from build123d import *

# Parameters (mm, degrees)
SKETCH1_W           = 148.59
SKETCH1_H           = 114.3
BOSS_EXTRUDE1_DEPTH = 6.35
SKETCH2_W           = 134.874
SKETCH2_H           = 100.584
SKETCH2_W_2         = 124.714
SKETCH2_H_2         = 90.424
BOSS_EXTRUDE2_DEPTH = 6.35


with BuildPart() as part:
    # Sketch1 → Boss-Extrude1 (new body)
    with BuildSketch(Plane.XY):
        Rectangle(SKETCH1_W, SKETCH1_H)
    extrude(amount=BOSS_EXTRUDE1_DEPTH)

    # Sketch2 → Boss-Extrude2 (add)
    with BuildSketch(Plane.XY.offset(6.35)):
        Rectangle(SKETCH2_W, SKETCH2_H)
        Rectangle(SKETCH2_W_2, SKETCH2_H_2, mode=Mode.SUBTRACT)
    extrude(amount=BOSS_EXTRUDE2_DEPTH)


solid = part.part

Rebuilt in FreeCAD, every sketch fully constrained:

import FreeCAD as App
import Part
import Sketcher
Q = App.Units.Quantity

doc = App.newDocument("Part")
body = doc.addObject("PartDesign::Body", "Body")

# Sketch on XY plane
sketch1 = body.newObject("Sketcher::SketchObject", "Sketch")
sketch1.AttachmentSupport = (doc.getObject("XY_Plane"), [""])
sketch1.MapMode = "FlatFace"
sketch1.addGeometry([
    Part.LineSegment(App.Vector(-74.295, 57.15, 0), App.Vector(-74.295, -57.15, 0)),
    Part.LineSegment(App.Vector(-74.295, -57.15, 0), App.Vector(74.295, -57.15, 0)),
    Part.LineSegment(App.Vector(74.295, -57.15, 0), App.Vector(74.295, 57.15, 0)),
    Part.LineSegment(App.Vector(74.295, 57.15, 0), App.Vector(-74.295, 57.15, 0)),
], False)
sketch1.addConstraint([
    Sketcher.Constraint("Coincident", 0, 2, 1, 1),
    Sketcher.Constraint("Coincident", 1, 2, 2, 1),
    Sketcher.Constraint("Coincident", 2, 2, 3, 1),
    Sketcher.Constraint("Coincident", 3, 2, 0, 1),
    Sketcher.Constraint("Vertical", 0),
    Sketcher.Constraint("Horizontal", 1),
    Sketcher.Constraint("Vertical", 2),
    Sketcher.Constraint("Horizontal", 3),
    Sketcher.Constraint("Symmetric", 0, 2, 2, 2, -1, 1),
    Sketcher.Constraint("DistanceY", 0, 2, 0, 1, Q("4.5 in")),
    Sketcher.Constraint("DistanceX", 1, 1, 1, 2, Q("5.85 in")),
])
pad1 = body.newObject("PartDesign::Pad", "Pad")
pad1.Profile = sketch1
pad1.Length = Q("0.25 in")

# Sketch on XY plane
sketch2 = body.newObject("Sketcher::SketchObject", "Sketch001")
sketch2.AttachmentSupport = (doc.getObject("XY_Plane"), [""])
sketch2.MapMode = "FlatFace"
sketch2.AttachmentOffset = App.Placement(App.Vector(0, 0, 0.25 * 25.4), App.Rotation())
sketch2.addGeometry([
    Part.LineSegment(App.Vector(-67.437, 50.292, 0), App.Vector(-67.437, -50.292, 0)),  # 0
    Part.LineSegment(App.Vector(-67.437, -50.292, 0), App.Vector(67.437, -50.292, 0)),  # 1
    Part.LineSegment(App.Vector(67.437, -50.292, 0), App.Vector(67.437, 50.292, 0)),  # 2
    Part.LineSegment(App.Vector(67.437, 50.292, 0), App.Vector(-67.437, 50.292, 0)),  # 3
    Part.LineSegment(App.Vector(62.357, -45.212, 0), App.Vector(-62.357, -45.212, 0)),  # 4
    Part.LineSegment(App.Vector(-62.357, -45.212, 0), App.Vector(-62.357, 45.212, 0)),  # 5
    Part.LineSegment(App.Vector(-62.357, 45.212, 0), App.Vector(62.357, 45.212, 0)),  # 6
    Part.LineSegment(App.Vector(62.357, 45.212, 0), App.Vector(62.357, -45.212, 0)),  # 7
], False)
sketch2.addConstraint([
    Sketcher.Constraint("Coincident", 0, 2, 1, 1),
    Sketcher.Constraint("Coincident", 1, 2, 2, 1),
    Sketcher.Constraint("Coincident", 2, 2, 3, 1),
    Sketcher.Constraint("Coincident", 3, 2, 0, 1),
    Sketcher.Constraint("Coincident", 4, 2, 5, 1),
    Sketcher.Constraint("Coincident", 5, 2, 6, 1),
    Sketcher.Constraint("Coincident", 6, 2, 7, 1),
    Sketcher.Constraint("Coincident", 7, 2, 4, 1),
    Sketcher.Constraint("Vertical", 0),
    Sketcher.Constraint("Horizontal", 1),
    Sketcher.Constraint("Vertical", 2),
    Sketcher.Constraint("Horizontal", 3),
    Sketcher.Constraint("Horizontal", 4),
    Sketcher.Constraint("Vertical", 5),
    Sketcher.Constraint("Horizontal", 6),
    Sketcher.Constraint("Vertical", 7),
    Sketcher.Constraint("Symmetric", 0, 2, 2, 2, -1, 1),
    Sketcher.Constraint("Symmetric", 4, 2, 6, 2, -1, 1),
    Sketcher.Constraint("DistanceX", 1, 1, 1, 2, Q("5.31 in")),
    Sketcher.Constraint("DistanceX", 4, 2, 4, 1, Q("4.91 in")),
    Sketcher.Constraint("DistanceY", 0, 2, 0, 1, Q("3.96 in")),
    Sketcher.Constraint("DistanceY", 5, 1, 5, 2, Q("3.56 in")),
])
pad2 = body.newObject("PartDesign::Pad", "Pad001")
pad2.Profile = sketch2
pad2.Length = Q("0.25 in")

doc.recompute()
